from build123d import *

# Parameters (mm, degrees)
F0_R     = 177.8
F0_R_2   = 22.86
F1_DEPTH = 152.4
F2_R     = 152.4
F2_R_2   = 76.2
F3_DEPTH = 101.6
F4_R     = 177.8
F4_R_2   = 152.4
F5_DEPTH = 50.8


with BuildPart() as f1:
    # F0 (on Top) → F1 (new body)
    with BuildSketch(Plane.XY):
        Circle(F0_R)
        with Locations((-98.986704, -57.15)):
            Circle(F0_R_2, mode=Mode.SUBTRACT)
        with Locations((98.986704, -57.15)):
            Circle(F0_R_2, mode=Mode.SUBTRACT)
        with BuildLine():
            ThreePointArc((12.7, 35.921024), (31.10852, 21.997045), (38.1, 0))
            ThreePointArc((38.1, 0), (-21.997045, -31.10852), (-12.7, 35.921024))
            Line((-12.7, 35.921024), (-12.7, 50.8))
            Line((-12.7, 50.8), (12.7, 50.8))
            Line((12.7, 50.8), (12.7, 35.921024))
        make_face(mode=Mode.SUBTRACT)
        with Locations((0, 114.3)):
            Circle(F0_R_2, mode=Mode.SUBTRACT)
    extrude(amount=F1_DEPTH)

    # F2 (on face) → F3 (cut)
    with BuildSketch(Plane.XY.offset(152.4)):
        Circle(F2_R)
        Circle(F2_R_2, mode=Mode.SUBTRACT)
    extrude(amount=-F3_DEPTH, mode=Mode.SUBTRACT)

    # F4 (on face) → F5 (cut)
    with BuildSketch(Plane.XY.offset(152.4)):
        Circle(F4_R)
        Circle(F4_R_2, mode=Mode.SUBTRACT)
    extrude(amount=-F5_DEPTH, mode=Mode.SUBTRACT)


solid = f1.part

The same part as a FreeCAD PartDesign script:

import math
import FreeCAD as App
import Part
import Sketcher

V = App.Vector
Q = App.Units.Quantity

doc = App.newDocument("Part")
body = doc.addObject("PartDesign::Body", "Body")

# Sketch on XY plane
sketch1 = body.newObject("Sketcher::SketchObject", "Sketch")
sketch1.AttachmentSupport = (doc.getObject("XY_Plane"), [""])
sketch1.MapMode = "FlatFace"
sketch1.addGeometry([
    Part.Circle(V(0, 0, 0), V(0, 0, 1), 178),  # 0
    Part.Circle(V(-99, -57, 0), V(0, 0, 1), 23),  # 1
    Part.Circle(V(99, -57, 0), V(0, 0, 1), 23),  # 2
    Part.LineSegment(V(13, 51, 0), V(13, 36, 0)),  # 3
    Part.ArcOfCircle(Part.Circle(V(0, 0, 0), V(0, 0, 1), 38), math.radians(0), math.radians(71)),  # 4
    Part.ArcOfCircle(Part.Circle(V(0, 0, 0), V(0, 0, 1), 38), math.radians(109), math.radians(360)),  # 5
    Part.LineSegment(V(-13, 36, 0), V(-13, 51, 0)),  # 6
    Part.LineSegment(V(-13, 51, 0), V(13, 51, 0)),  # 7
    Part.Circle(V(0, 114, 0), V(0, 0, 1), 23),  # 8
], False)
sketch1.addConstraint([
    Sketcher.Constraint("Coincident", 3, 2, 4, 2),
    Sketcher.Constraint("Tangent", 4, 1, 5, 2),
    Sketcher.Constraint("Coincident", 5, 1, 6, 1),
    Sketcher.Constraint("Coincident", 6, 2, 7, 1),
    Sketcher.Constraint("Coincident", 7, 2, 3, 1),
    Sketcher.Constraint("Vertical", 3),
    Sketcher.Constraint("Vertical", 6),
    Sketcher.Constraint("Horizontal", 7),
    Sketcher.Constraint("Coincident", 0, 3, -1, 1),
    Sketcher.Constraint("Coincident", 4, 3, -1, 1),
    Sketcher.Constraint("Equal", 1, 2),
    Sketcher.Constraint("Equal", 4, 5),
    Sketcher.Constraint("Equal", 2, 8),
    Sketcher.Constraint("Symmetric", 1, 3, 2, 3, -2),
    Sketcher.Constraint("PointOnObject", 8, 3, -2),
    Sketcher.Constraint("PointOnObject", 4, 1, -1),
    Sketcher.Constraint("Horizontal", 3, 2, 5, 1),
    Sketcher.Constraint("Diameter", 0, Q("14 in")),
    Sketcher.Constraint("Diameter", 1, Q("1.8 in")),
    Sketcher.Constraint("Radius", 4, Q("1.4999999 in")),
    Sketcher.Constraint("DistanceX", 7, 1, 7, 2, Q("1 in")),
    Sketcher.Constraint("DistanceY", -1, 1, 6, 2, Q("2 in")),
    Sketcher.Constraint("DistanceY", -1, 1, 8, 3, Q("4.5 in")),
    Sketcher.Constraint("DistanceY", 1, 3, -1, 1, Q("2.25 in")),
    Sketcher.Constraint("DistanceX", 1, 3, 2, 3, 197.973408),
])
pad1 = body.newObject("PartDesign::Pad", "Pad")
pad1.Profile = sketch1
pad1.Length = Q("6 in")

# Sketch on XY plane
sketch2 = body.newObject("Sketcher::SketchObject", "Sketch001")
sketch2.AttachmentSupport = (doc.getObject("XY_Plane"), [""])
sketch2.MapMode = "FlatFace"
sketch2.AttachmentOffset = App.Placement(V(0, 0, 6 * 25.4), App.Rotation())
sketch2.addGeometry([
    Part.Circle(V(0, 0, 0), V(0, 0, 1), 152),
    Part.Circle(V(0, 0, 0), V(0, 0, 1), 76),
], False)
sketch2.addConstraint([
    Sketcher.Constraint("Coincident", 0, 3, -1, 1),
    Sketcher.Constraint("Coincident", 1, 3, -1, 1),
    Sketcher.Constraint("Diameter", 0, Q("12 in")),
    Sketcher.Constraint("Diameter", 1, Q("6 in")),
])
pocket1 = body.newObject("PartDesign::Pocket", "Pocket")
pocket1.Profile = sketch2
pocket1.Length = Q("4 in")

# Sketch on XY plane
sketch3 = body.newObject("Sketcher::SketchObject", "Sketch002")
sketch3.AttachmentSupport = (doc.getObject("XY_Plane"), [""])
sketch3.MapMode = "FlatFace"
sketch3.AttachmentOffset = App.Placement(V(0, 0, 6 * 25.4), App.Rotation())
sketch3.addGeometry([
    Part.Circle(V(0, 0, 0), V(0, 0, 1), 178),
    Part.Circle(V(0, 0, 0), V(0, 0, 1), 152),
], False)
sketch3.addConstraint([
    Sketcher.Constraint("Coincident", 0, 3, -1, 1),
    Sketcher.Constraint("Coincident", 1, 3, -1, 1),
    Sketcher.Constraint("Diameter", 0, Q("14 in")),
    Sketcher.Constraint("Diameter", 1, Q("12 in")),
])
pocket2 = body.newObject("PartDesign::Pocket", "Pocket001")
pocket2.Profile = sketch3
pocket2.Length = Q("2 in")

doc.recompute()
